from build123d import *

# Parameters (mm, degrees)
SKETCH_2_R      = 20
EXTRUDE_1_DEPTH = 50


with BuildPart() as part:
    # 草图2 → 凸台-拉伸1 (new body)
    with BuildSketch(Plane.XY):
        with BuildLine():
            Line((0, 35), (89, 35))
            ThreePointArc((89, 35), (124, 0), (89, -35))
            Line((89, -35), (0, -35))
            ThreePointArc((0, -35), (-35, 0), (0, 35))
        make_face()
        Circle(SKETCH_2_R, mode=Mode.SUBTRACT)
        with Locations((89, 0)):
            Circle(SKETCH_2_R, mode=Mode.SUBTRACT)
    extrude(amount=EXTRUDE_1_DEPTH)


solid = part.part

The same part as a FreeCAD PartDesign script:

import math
import FreeCAD as App
import Part
import Sketcher
from FreeCAD import Vector
Q = App.Units.Quantity

doc = App.newDocument("Part")
body = doc.addObject("PartDesign::Body", "Body")

# Sketch on XY plane
sketch1 = body.newObject("Sketcher::SketchObject", "Sketch")
sketch1.AttachmentSupport = (doc.getObject("XY_Plane"), [""])
sketch1.MapMode = "FlatFace"
sketch1.addGeometry(Part.LineSegment(Vector(89, 35, 0), Vector(0, 35, 0)), False)
sketch1.addGeometry(Part.ArcOfCircle(Part.Circle(Vector(0, 0, 0), Vector(0, 0, 1), 35), math.radians(90), math.radians(270)), False)
sketch1.addGeometry(Part.LineSegment(Vector(0, -35, 0), Vector(89, -35, 0)), False)
sketch1.addGeometry(Part.ArcOfCircle(Part.Circle(Vector(89, 0, 0), Vector(0, 0, 1), 35), math.radians(-90), math.radians(90)), False)
sketch1.addGeometry(Part.Circle(Vector(89, 0, 0), Vector(0, 0, 1), 20), False)
sketch1.addGeometry(Part.Circle(Vector(0, 0, 0), Vector(0, 0, 1), 20), False)
sketch1.addConstraint(Sketcher.Constraint("Tangent", 0, 2, 1, 1))
sketch1.addConstraint(Sketcher.Constraint("Tangent", 1, 2, 2, 1))
sketch1.addConstraint(Sketcher.Constraint("Tangent", 2, 2, 3, 1))
sketch1.addConstraint(Sketcher.Constraint("Tangent", 3, 2, 0, 1))
sketch1.addConstraint(Sketcher.Constraint("Horizontal", 0))
sketch1.addConstraint(Sketcher.Constraint("Horizontal", 2))
sketch1.addConstraint(Sketcher.Constraint("Coincident", 1, 3, -1, 1))
sketch1.addConstraint(Sketcher.Constraint("Coincident", 5, 3, -1, 1))
sketch1.addConstraint(Sketcher.Constraint("Coincident", 4, 3, 3, 3))
sketch1.addConstraint(Sketcher.Constraint("Equal", 4, 5))
sketch1.addConstraint(Sketcher.Constraint("Diameter", 4, Q("40 mm")))
sketch1.addConstraint(Sketcher.Constraint("Radius", 1, Q("35 mm")))
sketch1.addConstraint(Sketcher.Constraint("DistanceX", 0, 2, 0, 1, Q("89 mm")))
pad1 = body.newObject("PartDesign::Pad", "Pad")
pad1.Profile = sketch1
pad1.Length = 50

doc.recompute()
